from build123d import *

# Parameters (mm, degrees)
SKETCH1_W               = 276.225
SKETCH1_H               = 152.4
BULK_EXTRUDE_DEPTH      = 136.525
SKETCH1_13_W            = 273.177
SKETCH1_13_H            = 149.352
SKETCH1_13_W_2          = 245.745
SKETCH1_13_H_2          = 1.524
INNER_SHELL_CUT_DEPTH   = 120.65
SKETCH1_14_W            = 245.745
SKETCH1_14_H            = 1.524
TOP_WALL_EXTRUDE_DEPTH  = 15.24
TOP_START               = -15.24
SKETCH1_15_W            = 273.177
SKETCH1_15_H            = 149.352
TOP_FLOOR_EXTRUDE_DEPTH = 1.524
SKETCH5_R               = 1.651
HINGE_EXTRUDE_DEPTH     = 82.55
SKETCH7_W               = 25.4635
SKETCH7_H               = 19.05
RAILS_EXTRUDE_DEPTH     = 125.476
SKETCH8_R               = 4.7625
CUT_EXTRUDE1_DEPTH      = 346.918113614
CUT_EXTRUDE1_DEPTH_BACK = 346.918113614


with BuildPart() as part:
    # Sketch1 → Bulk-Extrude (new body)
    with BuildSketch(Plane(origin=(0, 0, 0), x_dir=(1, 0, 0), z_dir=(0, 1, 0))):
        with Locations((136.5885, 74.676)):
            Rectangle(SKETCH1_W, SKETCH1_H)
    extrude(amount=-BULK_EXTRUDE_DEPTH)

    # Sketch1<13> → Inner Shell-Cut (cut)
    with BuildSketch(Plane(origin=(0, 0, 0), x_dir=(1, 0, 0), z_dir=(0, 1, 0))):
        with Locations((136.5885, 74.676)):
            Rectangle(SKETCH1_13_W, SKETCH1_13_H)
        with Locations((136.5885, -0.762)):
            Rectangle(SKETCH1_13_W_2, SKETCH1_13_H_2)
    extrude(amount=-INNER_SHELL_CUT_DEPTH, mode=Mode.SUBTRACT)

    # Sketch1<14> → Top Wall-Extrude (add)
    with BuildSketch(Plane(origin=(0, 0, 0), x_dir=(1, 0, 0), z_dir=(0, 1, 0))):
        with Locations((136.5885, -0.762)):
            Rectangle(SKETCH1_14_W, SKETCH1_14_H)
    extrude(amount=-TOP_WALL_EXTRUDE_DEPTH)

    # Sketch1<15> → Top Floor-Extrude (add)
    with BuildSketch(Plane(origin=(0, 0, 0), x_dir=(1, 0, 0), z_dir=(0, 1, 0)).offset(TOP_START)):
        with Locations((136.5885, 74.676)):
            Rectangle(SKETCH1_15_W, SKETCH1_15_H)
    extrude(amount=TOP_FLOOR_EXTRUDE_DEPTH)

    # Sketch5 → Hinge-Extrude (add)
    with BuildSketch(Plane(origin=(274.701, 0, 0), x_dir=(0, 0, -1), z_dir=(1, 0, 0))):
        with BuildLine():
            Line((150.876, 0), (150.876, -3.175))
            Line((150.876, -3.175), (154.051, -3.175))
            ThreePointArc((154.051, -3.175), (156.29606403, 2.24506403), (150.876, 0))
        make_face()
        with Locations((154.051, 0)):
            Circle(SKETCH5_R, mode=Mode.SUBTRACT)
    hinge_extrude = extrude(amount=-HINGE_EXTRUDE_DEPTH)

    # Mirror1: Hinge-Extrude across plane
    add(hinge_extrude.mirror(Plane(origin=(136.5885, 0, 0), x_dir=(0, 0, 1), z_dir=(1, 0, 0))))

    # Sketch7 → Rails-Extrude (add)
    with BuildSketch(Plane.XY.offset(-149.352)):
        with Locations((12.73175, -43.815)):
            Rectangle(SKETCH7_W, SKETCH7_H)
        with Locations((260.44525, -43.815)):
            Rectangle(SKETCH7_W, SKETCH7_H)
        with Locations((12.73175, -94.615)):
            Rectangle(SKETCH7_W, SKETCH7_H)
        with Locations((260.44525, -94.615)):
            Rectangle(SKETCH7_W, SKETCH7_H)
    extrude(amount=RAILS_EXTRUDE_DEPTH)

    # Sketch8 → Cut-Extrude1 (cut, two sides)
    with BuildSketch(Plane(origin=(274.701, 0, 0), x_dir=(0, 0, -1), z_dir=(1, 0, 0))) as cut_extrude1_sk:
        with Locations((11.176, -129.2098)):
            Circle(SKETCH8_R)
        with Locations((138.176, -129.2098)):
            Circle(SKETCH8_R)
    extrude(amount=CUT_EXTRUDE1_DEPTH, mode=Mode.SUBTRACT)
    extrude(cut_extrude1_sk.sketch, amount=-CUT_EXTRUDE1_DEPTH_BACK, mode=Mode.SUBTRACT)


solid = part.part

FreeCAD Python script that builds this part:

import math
import FreeCAD as App
import Part
import Sketcher
from FreeCAD import Vector
Q = App.Units.Quantity

doc = App.newDocument("Part")
body = doc.addObject("PartDesign::Body", "Body")

sketch1 = body.newObject("Sketcher::SketchObject", "Sketch")
sketch1.AttachmentSupport = (doc.getObject("XZ_Plane"), [""])
sketch1.MapMode = "FlatFace"
sketch1.addGeometry(Part.LineSegment(Vector(-2, -151, 0), Vector(-2, 2, 0)), False)
sketch1.addGeometry(Part.LineSegment(Vector(-2, 2, 0), Vector(275, 2, 0)), False)
sketch1.addGeometry(Part.LineSegment(Vector(275, 2, 0), Vector(275, -151, 0)), False)
sketch1.addGeometry(Part.LineSegment(Vector(275, -151, 0), Vector(-2, -151, 0)), False)
sketch1.addConstraint(Sketcher.Constraint("Coincident", 0, 2, 1, 1))
sketch1.addConstraint(Sketcher.Constraint("Coincident", 1, 2, 2, 1))
sketch1.addConstraint(Sketcher.Constraint("Coincident", 2, 2, 3, 1))
sketch1.addConstraint(Sketcher.Constraint("Coincident", 3, 2, 0, 1))
sketch1.addConstraint(Sketcher.Constraint("Vertical", 0))
sketch1.addConstraint(Sketcher.Constraint("Horizontal", 1))
sketch1.addConstraint(Sketcher.Constraint("Vertical", 2))
sketch1.addConstraint(Sketcher.Constraint("Horizontal", 3))
sketch1.addConstraint(Sketcher.Constraint("DistanceY", 0, 1, 0, 2, Q("6 in")))
sketch1.addConstraint(Sketcher.Constraint("DistanceX", 1, 1, 1, 2, Q("10.875 in")))
sketch1.addConstraint(Sketcher.Constraint("DistanceX", 0, 2, -1, 1, Q("0.06 in")))
sketch1.addConstraint(Sketcher.Constraint("DistanceY", -1, 1, 0, 2, Q("0.06 in")))
pad1 = body.newObject("PartDesign::Pad", "Pad")
pad1.Profile = sketch1
pad1.Length = Q("5.375 in")

sketch2 = body.newObject("Sketcher::SketchObject", "Sketch001")
sketch2.AttachmentSupport = (doc.getObject("XZ_Plane"), [""])
sketch2.MapMode = "FlatFace"
sketch2.addGeometry(Part.LineSegment(Vector(0, -149.4, 0), Vector(0, 0, 0)), False)
sketch2.addGeometry(Part.LineSegment(Vector(0, 0, 0), Vector(13.7, 0, 0)), False)
sketch2.addGeometry(Part.LineSegment(Vector(13.7, 0, 0), Vector(13.7, 1.5, 0)), False)
sketch2.addGeometry(Part.LineSegment(Vector(13.7, 1.5, 0), Vector(259.5, 1.5, 0)), False)
sketch2.addGeometry(Part.LineSegment(Vector(259.5, 1.5, 0), Vector(259.5, 0, 0)), False)
sketch2.addGeometry(Part.LineSegment(Vector(259.5, 0, 0), Vector(273.2, 0, 0)), False)
sketch2.addGeometry(Part.LineSegment(Vector(273.2, 0, 0), Vector(273.2, -149.4, 0)), False)
sketch2.addGeometry(Part.LineSegment(Vector(273.2, -149.4, 0), Vector(0, -149.4, 0)), False)
sketch2.addConstraint(Sketcher.Constraint("Coincident", 0, 2, 1, 1))
sketch2.addConstraint(Sketcher.Constraint("Coincident", 1, 2, 2, 1))
sketch2.addConstraint(Sketcher.Constraint("Coincident", 2, 2, 3, 1))
sketch2.addConstraint(Sketcher.Constraint("Coincident", 3, 2, 4, 1))
sketch2.addConstraint(Sketcher.Constraint("Coincident", 4, 2, 5, 1))
sketch2.addConstraint(Sketcher.Constraint("Coincident", 5, 2, 6, 1))
sketch2.addConstraint(Sketcher.Constraint("Coincident", 6, 2, 7, 1))
sketch2.addConstraint(Sketcher.Constraint("Coincident", 7, 2, 0, 1))
sketch2.addConstraint(Sketcher.Constraint("Vertical", 0))
sketch2.addConstraint(Sketcher.Constraint("Horizontal", 1))
sketch2.addConstraint(Sketcher.Constraint("Vertical", 2))
sketch2.addConstraint(Sketcher.Constraint("Horizontal", 3))
sketch2.addConstraint(Sketcher.Constraint("Vertical", 4))
sketch2.addConstraint(Sketcher.Constraint("Horizontal", 5))
sketch2.addConstraint(Sketcher.Constraint("Vertical", 6))
sketch2.addConstraint(Sketcher.Constraint("Horizontal", 7))
sketch2.addConstraint(Sketcher.Constraint("Coincident", 0, 2, -1, 1))
sketch2.addConstraint(Sketcher.Constraint("PointOnObject", 4, 2, -1))
sketch2.addConstraint(Sketcher.Constraint("Equal", 1, 5))
sketch2.addConstraint(Sketcher.Constraint("DistanceX", 1, 1, 1, 2, Q("0.54 in")))
sketch2.addConstraint(Sketcher.Constraint("DistanceY", 0, 1, 0, 2, Q("5.88 in")))
sketch2.addConstraint(Sketcher.Constraint("DistanceY", 2, 1, 2, 2, Q("0.06 in")))
sketch2.addConstraint(Sketcher.Constraint("DistanceX", 3, 1, 3, 2, Q("9.675 in")))
pocket1 = body.newObject("PartDesign::Pocket", "Pocket")
pocket1.Profile = sketch2
pocket1.Length = Q("4.75 in")
pocket1.Reversed = True

sketch3 = body.newObject("Sketcher::SketchObject", "Sketch002")
sketch3.AttachmentSupport = (doc.getObject("XZ_Plane"), [""])
sketch3.MapMode = "FlatFace"
sketch3.addGeometry(Part.LineSegment(Vector(13.7, 0, 0), Vector(13.7, 1.5, 0)), False)
sketch3.addGeometry(Part.LineSegment(Vector(13.7, 1.5, 0), Vector(259.5, 1.5, 0)), False)
sketch3.addGeometry(Part.LineSegment(Vector(259.5, 1.5, 0), Vector(259.5, 0, 0)), False)
sketch3.addGeometry(Part.LineSegment(Vector(259.5, 0, 0), Vector(13.7, 0, 0)), False)
sketch3.addConstraint(Sketcher.Constraint("Coincident", 0, 2, 1, 1))
sketch3.addConstraint(Sketcher.Constraint("Coincident", 1, 2, 2, 1))
sketch3.addConstraint(Sketcher.Constraint("Coincident", 2, 2, 3, 1))
sketch3.addConstraint(Sketcher.Constraint("Coincident", 3, 2, 0, 1))
sketch3.addConstraint(Sketcher.Constraint("Vertical", 0))
sketch3.addConstraint(Sketcher.Constraint("Horizontal", 1))
sketch3.addConstraint(Sketcher.Constraint("Vertical", 2))
sketch3.addConstraint(Sketcher.Constraint("Horizontal", 3))
sketch3.addConstraint(Sketcher.Constraint("PointOnObject", 2, 2, -1))
sketch3.addConstraint(Sketcher.Constraint("DistanceY", 0, 1, 0, 2, Q("0.06 in")))
sketch3.addConstraint(Sketcher.Constraint("DistanceX", 1, 1, 1, 2, Q("9.675 in")))
sketch3.addConstraint(Sketcher.Constraint("DistanceX", -1, 1, 0, 2, Q("0.54 in")))
pad2 = body.newObject("PartDesign::Pad", "Pad001")
pad2.Profile = sketch3
pad2.Length = Q("0.6 in")

sketch4 = body.newObject("Sketcher::SketchObject", "Sketch003")
sketch4.AttachmentSupport = (doc.getObject("XZ_Plane"), [""])
sketch4.MapMode = "FlatFace"
sketch4.AttachmentOffset = App.Placement(Vector(0, 0, 0.6 * 25.4), App.Rotation())
sketch4.addGeometry(Part.LineSegment(Vector(0, -149, 0), Vector(0, 0, 0)), False)
sketch4.addGeometry(Part.LineSegment(Vector(0, 0, 0), Vector(273, 0, 0)), False)
sketch4.addGeometry(Part.LineSegment(Vector(273, 0, 0), Vector(273, -149, 0)), False)
sketch4.addGeometry(Part.LineSegment(Vector(273, -149, 0), Vector(0, -149, 0)), False)
sketch4.addConstraint(Sketcher.Constraint("Coincident", 0, 2, 1, 1))
sketch4.addConstraint(Sketcher.Constraint("Coincident", 1, 2, 2, 1))
sketch4.addConstraint(Sketcher.Constraint("Coincident", 2, 2, 3, 1))
sketch4.addConstraint(Sketcher.Constraint("Coincident", 3, 2, 0, 1))
sketch4.addConstraint(Sketcher.Constraint("Vertical", 0))
sketch4.addConstraint(Sketcher.Constraint("Horizontal", 1))
sketch4.addConstraint(Sketcher.Constraint("Vertical", 2))
sketch4.addConstraint(Sketcher.Constraint("Horizontal", 3))
sketch4.addConstraint(Sketcher.Constraint("Coincident", 0, 2, -1, 1))
sketch4.addConstraint(Sketcher.Constraint("DistanceY", 0, 1, 0, 2, Q("5.88 in")))
sketch4.addConstraint(Sketcher.Constraint("DistanceX", 1, 1, 1, 2, Q("10.755 in")))
pad3 = body.newObject("PartDesign::Pad", "Pad002")
pad3.Profile = sketch4
pad3.Length = Q("0.06 in")
pad3.Reversed = True

sketch5 = body.newObject("Sketcher::SketchObject", "Sketch004")
sketch5.AttachmentSupport = (doc.getObject("YZ_Plane"), [""])
sketch5.MapMode = "FlatFace"
sketch5.AttachmentOffset = App.Placement(Vector(0, 0, 10.815 * 25.4), App.Rotation())
sketch5.addGeometry(Part.LineSegment(Vector(0, -150.9, 0), Vector(-3.2, -150.9, 0)), False)
sketch5.addGeometry(Part.LineSegment(Vector(-3.2, -150.9, 0), Vector(-3.2, -154.1, 0)), False)
sketch5.addGeometry(Part.ArcOfCircle(Part.Circle(Vector(0, -154.1, 0), Vector(0, 0, 1), 3.2), math.radians(180), math.radians(450)), False)
sketch5.addGeometry(Part.Circle(Vector(0, -154.1, 0), Vector(0, 0, 1), 1.7), False)
sketch5.addConstraint(Sketcher.Constraint("Coincident", 0, 2, 1, 1))
sketch5.addConstraint(Sketcher.Constraint("Tangent", 1, 2, 2, 1))
sketch5.addConstraint(Sketcher.Constraint("Tangent", 2, 2, 0, 1))
sketch5.addConstraint(Sketcher.Constraint("Horizontal", 0))
sketch5.addConstraint(Sketcher.Constraint("Vertical", 1))
sketch5.addConstraint(Sketcher.Constraint("Coincident", 3, 3, 2, 3))
sketch5.addConstraint(Sketcher.Constraint("PointOnObject", 2, 3, -2))
sketch5.addConstraint(Sketcher.Constraint("Diameter", 3, Q("0.13 in")))
sketch5.addConstraint(Sketcher.Constraint("Radius", 2, Q("0.125 in")))
sketch5.addConstraint(Sketcher.Constraint("DistanceY", 0, 2, -1, 1, Q("5.94 in")))
pad4 = body.newObject("PartDesign::Pad", "Pad003")
pad4.Profile = sketch5
pad4.Length = Q("3.25 in")
pad4.Reversed = True
doc.recompute()

datumplane = body.newObject("PartDesign::Plane", "DatumPlane")
datumplane.AttachmentSupport = (doc.getObject("YZ_Plane"), [""])
datumplane.MapMode = "FlatFace"
datumplane.AttachmentOffset = App.Placement(Vector(0, 0, 5.3775 * 25.4), App.Rotation())
mirrored = body.newObject("PartDesign::Mirrored", "Mirrored")
mirrored.Originals = [pad4]
mirrored.MirrorPlane = (datumplane, [""])
body.Tip = mirrored

sketch6 = body.newObject("Sketcher::SketchObject", "Sketch005")
sketch6.AttachmentSupport = (doc.getObject("XY_Plane"), [""])
sketch6.MapMode = "FlatFace"
sketch6.AttachmentOffset = App.Placement(Vector(0, 0, -5.88 * 25.4), App.Rotation())
sketch6.addGeometry(Part.LineSegment(Vector(0, -34, 0), Vector(0, -53, 0)), False)
sketch6.addGeometry(Part.LineSegment(Vector(0, -53, 0), Vector(25, -53, 0)), False)
sketch6.addGeometry(Part.LineSegment(Vector(25, -53, 0), Vector(25, -34, 0)), False)
sketch6.addGeometry(Part.LineSegment(Vector(25, -34, 0), Vector(0, -34, 0)), False)
sketch6.addGeometry(Part.LineSegment(Vector(248, -34, 0), Vector(248, -53, 0)), False)
sketch6.addGeometry(Part.LineSegment(Vector(248, -53, 0), Vector(273, -53, 0)), False)
sketch6.addGeometry(Part.LineSegment(Vector(273, -53, 0), Vector(273, -34, 0)), False)
sketch6.addGeometry(Part.LineSegment(Vector(273, -34, 0), Vector(248, -34, 0)), False)
sketch6.addGeometry(Part.LineSegment(Vector(0, -85, 0), Vector(0, -104, 0)), False)
sketch6.addGeometry(Part.LineSegment(Vector(0, -104, 0), Vector(25, -104, 0)), False)
sketch6.addGeometry(Part.LineSegment(Vector(25, -104, 0), Vector(25, -85, 0)), False)
sketch6.addGeometry(Part.LineSegment(Vector(25, -85, 0), Vector(0, -85, 0)), False)
sketch6.addGeometry(Part.LineSegment(Vector(248, -85, 0), Vector(248, -104, 0)), False)
sketch6.addGeometry(Part.LineSegment(Vector(248, -104, 0), Vector(273, -104, 0)), False)
sketch6.addGeometry(Part.LineSegment(Vector(273, -104, 0), Vector(273, -85, 0)), False)
sketch6.addGeometry(Part.LineSegment(Vector(273, -85, 0), Vector(248, -85, 0)), False)
sketch6.addConstraint(Sketcher.Constraint("Coincident", 0, 2, 1, 1))
sketch6.addConstraint(Sketcher.Constraint("Coincident", 1, 2, 2, 1))
sketch6.addConstraint(Sketcher.Constraint("Coincident", 2, 2, 3, 1))
sketch6.addConstraint(Sketcher.Constraint("Coincident", 3, 2, 0, 1))
sketch6.addConstraint(Sketcher.Constraint("Coincident", 4, 2, 5, 1))
sketch6.addConstraint(Sketcher.Constraint("Coincident", 5, 2, 6, 1))
sketch6.addConstraint(Sketcher.Constraint("Coincident", 6, 2, 7, 1))
sketch6.addConstraint(Sketcher.Constraint("Coincident", 7, 2, 4, 1))
sketch6.addConstraint(Sketcher.Constraint("Coincident", 8, 2, 9, 1))
sketch6.addConstraint(Sketcher.Constraint("Coincident", 9, 2, 10, 1))
sketch6.addConstraint(Sketcher.Constraint("Coincident", 10, 2, 11, 1))
sketch6.addConstraint(Sketcher.Constraint("Coincident", 11, 2, 8, 1))
sketch6.addConstraint(Sketcher.Constraint("Coincident", 12, 2, 13, 1))
sketch6.addConstraint(Sketcher.Constraint("Coincident", 13, 2, 14, 1))
sketch6.addConstraint(Sketcher.Constraint("Coincident", 14, 2, 15, 1))
sketch6.addConstraint(Sketcher.Constraint("Coincident", 15, 2, 12, 1))
sketch6.addConstraint(Sketcher.Constraint("Vertical", 0))
sketch6.addConstraint(Sketcher.Constraint("Horizontal", 1))
sketch6.addConstraint(Sketcher.Constraint("Vertical", 2))
sketch6.addConstraint(Sketcher.Constraint("Horizontal", 3))
sketch6.addConstraint(Sketcher.Constraint("Vertical", 4))
sketch6.addConstraint(Sketcher.Constraint("Horizontal", 5))
sketch6.addConstraint(Sketcher.Constraint("Vertical", 6))
sketch6.addConstraint(Sketcher.Constraint("Horizontal", 7))
sketch6.addConstraint(Sketcher.Constraint("Vertical", 8))
sketch6.addConstraint(Sketcher.Constraint("Horizontal", 9))
sketch6.addConstraint(Sketcher.Constraint("Vertical", 10))
sketch6.addConstraint(Sketcher.Constraint("Horizontal", 11))
sketch6.addConstraint(Sketcher.Constraint("Vertical", 12))
sketch6.addConstraint(Sketcher.Constraint("Horizontal", 13))
sketch6.addConstraint(Sketcher.Constraint("Vertical", 14))
sketch6.addConstraint(Sketcher.Constraint("Horizontal", 15))
sketch6.addConstraint(Sketcher.Constraint("PointOnObject", 0, 2, -2))
sketch6.addConstraint(Sketcher.Constraint("PointOnObject", 8, 2, -2))
sketch6.addConstraint(Sketcher.Constraint("Horizontal", 1, 2, 4, 2))
sketch6.addConstraint(Sketcher.Constraint("Horizontal", 3, 2, 6, 2))
sketch6.addConstraint(Sketcher.Constraint("Horizontal", 9, 2, 12, 2))
sketch6.addConstraint(Sketcher.Constraint("Horizontal", 11, 2, 14, 2))
sketch6.addConstraint(Sketcher.Constraint("Vertical", 2, 2, 9, 2))
sketch6.addConstraint(Sketcher.Constraint("Vertical", 7, 2, 12, 2))
sketch6.addConstraint(Sketcher.Constraint("Vertical", 6, 2, 13, 2))
sketch6.addConstraint(Sketcher.Constraint("Equal", 3, 5))
sketch6.addConstraint(Sketcher.Constraint("Equal", 6, 8))
sketch6.addConstraint(Sketcher.Constraint("DistanceY", 8, 2, 0, 2, Q("2 in")))
sketch6.addConstraint(Sketcher.Constraint("DistanceY", 0, 2, 0, 1, Q("0.75 in")))
sketch6.addConstraint(Sketcher.Constraint("DistanceY", 0, 2, -1, 1, Q("2.1 in")))
sketch6.addConstraint(Sketcher.Constraint("DistanceX", 1, 2, 4, 2, Q("8.75 in")))
sketch6.addConstraint(Sketcher.Constraint("DistanceX", 1, 1, 1, 2, Q("1.0025 in")))
pad5 = body.newObject("PartDesign::Pad", "Pad004")
pad5.Profile = sketch6
pad5.Length = Q("4.94 in")

sketch7 = body.newObject("Sketcher::SketchObject", "Sketch006")
sketch7.AttachmentSupport = (doc.getObject("YZ_Plane"), [""])
sketch7.MapMode = "FlatFace"
sketch7.AttachmentOffset = App.Placement(Vector(0, 0, 10.815 * 25.4), App.Rotation())
sketch7.addGeometry(Part.Circle(Vector(-129.2, -11.2, 0), Vector(0, 0, 1), 4.8), False)
sketch7.addGeometry(Part.Circle(Vector(-129.2, -138.2, 0), Vector(0, 0, 1), 4.8), False)
sketch7.addConstraint(Sketcher.Constraint("Equal", 0, 1))
sketch7.addConstraint(Sketcher.Constraint("Vertical", 0, 3, 1, 3))
sketch7.addConstraint(Sketcher.Constraint("Diameter", 0, Q("0.375 in")))
sketch7.addConstraint(Sketcher.Constraint("DistanceY", 1, 3, 0, 3, Q("5 in")))
sketch7.addConstraint(Sketcher.Constraint("DistanceY", 0, 3, -1, 1, Q("0.44 in")))
sketch7.addConstraint(Sketcher.Constraint("DistanceX", 0, 3, -1, 1, Q("5.087 in")))
pocket2 = body.newObject("PartDesign::Pocket", "Pocket001")
pocket2.Profile = sketch7
pocket2.Type = "ThroughAll"
pocket2.Midplane = True

doc.recompute()
